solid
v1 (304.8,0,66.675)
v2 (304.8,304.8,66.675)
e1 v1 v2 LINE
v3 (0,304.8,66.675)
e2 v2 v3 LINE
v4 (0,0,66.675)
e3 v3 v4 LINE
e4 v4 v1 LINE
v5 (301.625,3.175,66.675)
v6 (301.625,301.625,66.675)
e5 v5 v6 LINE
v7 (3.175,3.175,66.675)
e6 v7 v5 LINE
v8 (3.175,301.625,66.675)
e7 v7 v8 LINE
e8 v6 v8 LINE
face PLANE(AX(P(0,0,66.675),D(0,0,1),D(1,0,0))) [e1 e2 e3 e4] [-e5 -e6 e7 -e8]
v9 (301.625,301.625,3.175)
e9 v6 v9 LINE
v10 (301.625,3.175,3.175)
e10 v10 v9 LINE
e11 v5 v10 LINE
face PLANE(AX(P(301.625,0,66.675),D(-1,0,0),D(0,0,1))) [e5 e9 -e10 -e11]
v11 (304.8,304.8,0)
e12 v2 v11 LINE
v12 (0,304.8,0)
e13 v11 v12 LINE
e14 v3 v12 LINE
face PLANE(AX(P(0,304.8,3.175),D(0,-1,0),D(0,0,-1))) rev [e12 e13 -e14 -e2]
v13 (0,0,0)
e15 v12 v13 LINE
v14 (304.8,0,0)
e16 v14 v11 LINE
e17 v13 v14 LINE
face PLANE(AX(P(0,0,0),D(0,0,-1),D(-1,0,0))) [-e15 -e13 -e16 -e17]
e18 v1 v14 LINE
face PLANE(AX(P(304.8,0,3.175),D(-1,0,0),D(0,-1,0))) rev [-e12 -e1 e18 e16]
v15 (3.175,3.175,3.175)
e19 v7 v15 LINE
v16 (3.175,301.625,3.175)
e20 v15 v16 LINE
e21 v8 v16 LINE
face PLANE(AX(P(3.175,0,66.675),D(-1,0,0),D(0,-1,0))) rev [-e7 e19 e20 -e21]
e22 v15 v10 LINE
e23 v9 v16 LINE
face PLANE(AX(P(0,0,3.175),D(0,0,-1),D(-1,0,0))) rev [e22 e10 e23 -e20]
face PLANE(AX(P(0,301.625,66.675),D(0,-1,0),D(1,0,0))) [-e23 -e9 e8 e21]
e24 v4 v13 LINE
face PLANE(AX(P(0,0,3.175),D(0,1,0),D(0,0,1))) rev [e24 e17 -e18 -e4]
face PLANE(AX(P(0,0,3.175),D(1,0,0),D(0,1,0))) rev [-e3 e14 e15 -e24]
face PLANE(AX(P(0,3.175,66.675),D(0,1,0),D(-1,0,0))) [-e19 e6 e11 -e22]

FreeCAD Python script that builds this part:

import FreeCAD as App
import Part
import Sketcher

V = App.Vector
Q = App.Units.Quantity


def add_polygon(sketch, points):
    """Adds a closed chain of lines whose ends are joined by coincident constraints."""
    first, n = sketch.GeometryCount, len(points)
    for a, b in zip(points, points[1:] + points[:1]):
        sketch.addGeometry(Part.LineSegment(App.Vector(*a, 0), App.Vector(*b, 0)), False)
    for i in range(n):
        sketch.addConstraint(Sketcher.Constraint("Coincident", first + i, 2, first + (i + 1) % n, 1))

doc = App.newDocument("Part")
body = doc.addObject("PartDesign::Body", "Body")

sketch1 = body.newObject("Sketcher::SketchObject", "Sketch")
sketch1.AttachmentSupport = (doc.getObject("XY_Plane"), [""])
sketch1.MapMode = "FlatFace"
add_polygon(sketch1, [(0, 305), (0, 0), (305, 0), (305, 305)])
sketch1.addConstraint([
    Sketcher.Constraint("Vertical", 0),
    Sketcher.Constraint("Horizontal", 1),
    Sketcher.Constraint("Vertical", 2),
    Sketcher.Constraint("Horizontal", 3),
    Sketcher.Constraint("Coincident", 0, 2, -1, 1),
    Sketcher.Constraint("Equal", 3, 0),
    Sketcher.Constraint("DistanceX", 1, 1, 1, 2, Q("12 in")),
])
pad1 = body.newObject("PartDesign::Pad", "Pad")
pad1.Profile = sketch1
pad1.Length = Q("0.125 in")

sketch2 = body.newObject("Sketcher::SketchObject", "Sketch001")
sketch2.AttachmentSupport = (doc.getObject("XY_Plane"), [""])
sketch2.MapMode = "FlatFace"
sketch2.AttachmentOffset = App.Placement(V(0, 0, 0.125 * 25.4), App.Rotation())
add_polygon(sketch2, [(305, 305), (0, 305), (0, 0), (305, 0)])
add_polygon(sketch2, [(302, 3), (3, 3), (3, 302), (302, 302)])
sketch2.addConstraint([
    Sketcher.Constraint("Horizontal", 0),
    Sketcher.Constraint("Vertical", 1),
    Sketcher.Constraint("Horizontal", 2),
    Sketcher.Constraint("Vertical", 3),
    Sketcher.Constraint("Horizontal", 4),
    Sketcher.Constraint("Vertical", 5),
    Sketcher.Constraint("Horizontal", 6),
    Sketcher.Constraint("Vertical", 7),
    Sketcher.Constraint("Coincident", 1, 2, -1, 1),
    Sketcher.Constraint("Equal", 2, 1),
    Sketcher.Constraint("Equal", 6, 5),
    Sketcher.Constraint("DistanceX", 0, 2, 0, 1, Q("12 in")),
    Sketcher.Constraint("DistanceX", 4, 2, 4, 1, Q("11.75 in")),
    Sketcher.Constraint("DistanceX", -1, 1, 4, 2, Q("0.125 in")),
    Sketcher.Constraint("DistanceY", -1, 1, 4, 2, Q("0.125 in")),
])
pad2 = body.newObject("PartDesign::Pad", "Pad001")
pad2.Profile = sketch2
pad2.Length = Q("2.5 in")

doc.recompute()
